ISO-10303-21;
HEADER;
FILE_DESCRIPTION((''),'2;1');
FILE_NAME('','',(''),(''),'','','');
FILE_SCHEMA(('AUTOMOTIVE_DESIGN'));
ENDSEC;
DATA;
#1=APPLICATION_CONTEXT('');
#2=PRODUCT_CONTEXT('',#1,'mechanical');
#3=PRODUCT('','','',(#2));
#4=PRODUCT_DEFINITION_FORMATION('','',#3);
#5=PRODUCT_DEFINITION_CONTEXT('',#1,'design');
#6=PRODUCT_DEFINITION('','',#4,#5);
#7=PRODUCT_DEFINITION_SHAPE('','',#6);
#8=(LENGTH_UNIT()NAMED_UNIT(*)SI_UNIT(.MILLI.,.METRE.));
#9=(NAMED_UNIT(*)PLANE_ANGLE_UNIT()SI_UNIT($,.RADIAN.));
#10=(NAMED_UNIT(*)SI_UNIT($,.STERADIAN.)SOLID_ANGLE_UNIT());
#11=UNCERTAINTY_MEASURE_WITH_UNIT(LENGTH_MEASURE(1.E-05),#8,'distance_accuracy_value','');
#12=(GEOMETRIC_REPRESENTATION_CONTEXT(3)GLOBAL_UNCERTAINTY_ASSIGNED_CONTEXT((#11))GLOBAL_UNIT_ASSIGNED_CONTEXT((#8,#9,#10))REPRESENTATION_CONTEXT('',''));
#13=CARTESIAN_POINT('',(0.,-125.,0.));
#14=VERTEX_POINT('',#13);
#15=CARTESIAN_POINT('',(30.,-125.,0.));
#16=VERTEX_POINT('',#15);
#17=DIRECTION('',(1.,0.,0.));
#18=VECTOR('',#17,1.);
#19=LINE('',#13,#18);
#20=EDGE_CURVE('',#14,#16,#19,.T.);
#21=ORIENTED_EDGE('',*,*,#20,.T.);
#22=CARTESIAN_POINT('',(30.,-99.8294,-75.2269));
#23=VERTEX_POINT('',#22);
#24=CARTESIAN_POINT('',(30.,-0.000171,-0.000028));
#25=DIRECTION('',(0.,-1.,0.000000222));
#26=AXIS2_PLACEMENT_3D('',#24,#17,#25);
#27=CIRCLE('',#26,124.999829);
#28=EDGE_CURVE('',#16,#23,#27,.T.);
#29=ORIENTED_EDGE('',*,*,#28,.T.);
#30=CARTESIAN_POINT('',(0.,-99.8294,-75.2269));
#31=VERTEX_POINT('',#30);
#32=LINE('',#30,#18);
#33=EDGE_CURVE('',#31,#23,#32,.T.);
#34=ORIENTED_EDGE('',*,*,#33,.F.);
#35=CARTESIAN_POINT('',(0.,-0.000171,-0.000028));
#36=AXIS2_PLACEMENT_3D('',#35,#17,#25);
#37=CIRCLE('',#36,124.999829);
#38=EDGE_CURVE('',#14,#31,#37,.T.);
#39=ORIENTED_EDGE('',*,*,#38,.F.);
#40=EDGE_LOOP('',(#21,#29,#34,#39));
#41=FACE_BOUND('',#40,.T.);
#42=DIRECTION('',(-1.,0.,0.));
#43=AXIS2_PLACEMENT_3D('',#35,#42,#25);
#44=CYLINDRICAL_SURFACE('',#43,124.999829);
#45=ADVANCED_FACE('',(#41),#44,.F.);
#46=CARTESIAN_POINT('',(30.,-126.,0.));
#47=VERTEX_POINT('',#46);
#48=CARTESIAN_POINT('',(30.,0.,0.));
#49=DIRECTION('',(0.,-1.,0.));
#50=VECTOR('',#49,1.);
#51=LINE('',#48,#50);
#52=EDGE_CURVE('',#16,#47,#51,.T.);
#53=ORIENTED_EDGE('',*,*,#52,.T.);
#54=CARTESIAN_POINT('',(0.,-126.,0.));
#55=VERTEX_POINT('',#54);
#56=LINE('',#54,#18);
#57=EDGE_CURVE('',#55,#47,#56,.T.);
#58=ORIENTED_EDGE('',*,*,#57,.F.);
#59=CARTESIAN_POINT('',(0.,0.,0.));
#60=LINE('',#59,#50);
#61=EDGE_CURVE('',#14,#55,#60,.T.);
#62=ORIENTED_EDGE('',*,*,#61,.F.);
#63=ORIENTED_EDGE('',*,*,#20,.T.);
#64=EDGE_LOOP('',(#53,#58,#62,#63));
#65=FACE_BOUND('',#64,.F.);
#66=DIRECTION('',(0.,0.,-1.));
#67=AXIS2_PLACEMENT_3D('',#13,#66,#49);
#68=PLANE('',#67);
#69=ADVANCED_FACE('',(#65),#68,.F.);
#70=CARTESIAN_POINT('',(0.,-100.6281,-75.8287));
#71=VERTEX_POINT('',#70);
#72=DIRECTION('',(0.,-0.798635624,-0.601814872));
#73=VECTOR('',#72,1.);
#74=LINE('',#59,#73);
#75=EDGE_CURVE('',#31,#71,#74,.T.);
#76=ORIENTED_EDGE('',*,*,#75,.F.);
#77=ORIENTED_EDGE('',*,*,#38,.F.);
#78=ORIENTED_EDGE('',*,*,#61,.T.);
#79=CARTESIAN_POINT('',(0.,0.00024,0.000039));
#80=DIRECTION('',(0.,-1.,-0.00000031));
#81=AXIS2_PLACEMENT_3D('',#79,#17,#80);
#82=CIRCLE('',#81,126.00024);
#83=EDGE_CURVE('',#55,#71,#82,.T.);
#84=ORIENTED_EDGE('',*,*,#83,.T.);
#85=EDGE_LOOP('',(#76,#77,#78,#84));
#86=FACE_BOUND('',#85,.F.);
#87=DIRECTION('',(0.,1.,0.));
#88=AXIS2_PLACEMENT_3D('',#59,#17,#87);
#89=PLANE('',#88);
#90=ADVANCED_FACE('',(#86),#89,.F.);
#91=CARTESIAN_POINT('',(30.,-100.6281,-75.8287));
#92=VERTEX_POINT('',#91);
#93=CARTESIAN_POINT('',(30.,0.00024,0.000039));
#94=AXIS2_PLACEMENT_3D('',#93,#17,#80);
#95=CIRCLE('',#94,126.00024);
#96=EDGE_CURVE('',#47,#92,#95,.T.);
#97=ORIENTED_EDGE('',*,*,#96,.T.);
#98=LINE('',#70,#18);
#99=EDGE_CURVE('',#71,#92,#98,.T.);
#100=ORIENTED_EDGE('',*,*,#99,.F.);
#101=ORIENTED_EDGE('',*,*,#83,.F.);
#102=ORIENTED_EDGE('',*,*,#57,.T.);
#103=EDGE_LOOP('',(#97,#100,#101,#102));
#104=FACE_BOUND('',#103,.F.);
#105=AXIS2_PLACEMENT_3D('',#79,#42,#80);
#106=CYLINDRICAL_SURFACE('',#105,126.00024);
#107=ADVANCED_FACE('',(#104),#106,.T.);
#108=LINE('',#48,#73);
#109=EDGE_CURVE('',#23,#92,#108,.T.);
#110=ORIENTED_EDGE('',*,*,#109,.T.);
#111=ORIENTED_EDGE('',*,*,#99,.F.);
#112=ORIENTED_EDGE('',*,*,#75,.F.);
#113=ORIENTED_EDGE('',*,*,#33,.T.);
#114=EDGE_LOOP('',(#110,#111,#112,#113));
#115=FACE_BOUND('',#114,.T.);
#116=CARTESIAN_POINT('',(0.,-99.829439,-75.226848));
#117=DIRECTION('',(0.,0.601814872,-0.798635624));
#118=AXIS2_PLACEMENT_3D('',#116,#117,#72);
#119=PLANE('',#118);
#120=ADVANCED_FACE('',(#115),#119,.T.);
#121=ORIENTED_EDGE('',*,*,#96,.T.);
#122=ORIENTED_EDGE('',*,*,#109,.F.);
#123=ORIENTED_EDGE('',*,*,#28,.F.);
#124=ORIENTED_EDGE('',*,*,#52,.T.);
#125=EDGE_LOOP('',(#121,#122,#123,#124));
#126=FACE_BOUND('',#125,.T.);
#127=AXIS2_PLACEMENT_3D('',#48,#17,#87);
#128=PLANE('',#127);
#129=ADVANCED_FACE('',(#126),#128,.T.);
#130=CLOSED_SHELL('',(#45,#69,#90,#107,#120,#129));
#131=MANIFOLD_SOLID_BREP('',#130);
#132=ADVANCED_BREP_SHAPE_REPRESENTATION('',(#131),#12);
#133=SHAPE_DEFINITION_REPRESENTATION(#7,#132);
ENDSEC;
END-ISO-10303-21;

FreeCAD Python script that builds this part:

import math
import FreeCAD as App
import Part
import Sketcher
Q = App.Units.Quantity

doc = App.newDocument("Part")
params = doc.addObject("Spreadsheet::Sheet", "Params")
for row, (alias, value) in enumerate([
    ("sketch1_radius", "125 mm"),
    ("sketch1_width", "1 mm"),
    ("pad1_length", "30 mm"),
], start=1):
    params.set(f"A{row}", alias)
    params.set(f"B{row}", "=" + value)
    params.setAlias(f"B{row}", alias)

body = doc.addObject("PartDesign::Body", "Body")

# Sketch on YZ plane
sketch1 = body.newObject("Sketcher::SketchObject", "Sketch")
sketch1.AttachmentSupport = (doc.getObject("YZ_Plane"), [""])
sketch1.MapMode = "FlatFace"
sketch1.addGeometry([
    Part.ArcOfCircle(Part.Circle(App.Vector(0, 0, 0), App.Vector(0, 0, 1), 125), math.radians(180), math.radians(217)),
    Part.LineSegment(App.Vector(-125, 0, 0), App.Vector(-126, 0, 0)),
    Part.ArcOfCircle(Part.Circle(App.Vector(0, 0, 0), App.Vector(0, 0, 1), 126), math.radians(180), math.radians(217)),
    Part.LineSegment(App.Vector(-100.6, -75.8, 0), App.Vector(-99.8, -75.2, 0)),
], False)
sketch1.addConstraint([
    Sketcher.Constraint("Coincident", 0, 1, 1, 1),
    Sketcher.Constraint("Coincident", 1, 2, 2, 1),
    Sketcher.Constraint("Coincident", 2, 2, 3, 1),
    Sketcher.Constraint("Coincident", 3, 2, 0, 2),
    Sketcher.Constraint("Horizontal", 1),
    Sketcher.Constraint("Coincident", 0, 3, -1, 1),
    Sketcher.Constraint("Coincident", 2, 3, -1, 1),
    Sketcher.Constraint("PointOnObject", 0, 1, -1),
    Sketcher.Constraint("Radius", 0, Q("125 mm")),
    Sketcher.Constraint("DistanceX", 1, 2, 1, 1, Q("1 mm")),
    Sketcher.Constraint("Angle", 3, Q("37 deg")),
    Sketcher.Constraint("DistanceX", 2, 2, -1, 1, Q("100.628 mm")),
])
sketch1.setExpression("Constraints[8]", "Params.sketch1_radius")
sketch1.setExpression("Constraints[9]", "Params.sketch1_width")
pad1 = body.newObject("PartDesign::Pad", "Pad")
pad1.Profile = sketch1
pad1.setExpression("Length", "Params.pad1_length")

doc.recompute()
